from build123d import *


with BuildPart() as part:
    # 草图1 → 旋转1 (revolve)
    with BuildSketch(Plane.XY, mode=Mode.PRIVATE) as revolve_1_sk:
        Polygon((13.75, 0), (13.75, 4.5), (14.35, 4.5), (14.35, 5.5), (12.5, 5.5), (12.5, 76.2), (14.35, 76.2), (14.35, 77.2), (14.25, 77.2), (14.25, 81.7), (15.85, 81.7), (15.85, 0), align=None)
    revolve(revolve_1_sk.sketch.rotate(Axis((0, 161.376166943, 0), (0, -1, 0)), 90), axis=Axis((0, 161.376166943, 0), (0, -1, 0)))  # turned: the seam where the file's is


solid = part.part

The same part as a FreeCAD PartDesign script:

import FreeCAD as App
import Part
import Sketcher
Q = App.Units.Quantity

doc = App.newDocument("Part")
body = doc.addObject("PartDesign::Body", "Body")

# Sketch on XY plane
sketch1 = body.newObject("Sketcher::SketchObject", "Sketch")
sketch1.AttachmentSupport = (doc.getObject("XY_Plane"), [""])
sketch1.MapMode = "FlatFace"
sketch1.addGeometry(Part.LineSegment(App.Vector(13.75, 4.5, 0), App.Vector(13.75, 0, 0)), False)
sketch1.addGeometry(Part.LineSegment(App.Vector(13.75, 0, 0), App.Vector(15.85, 0, 0)), False)
sketch1.addGeometry(Part.LineSegment(App.Vector(15.85, 0, 0), App.Vector(15.85, 81.7, 0)), False)
sketch1.addGeometry(Part.LineSegment(App.Vector(15.85, 81.7, 0), App.Vector(14.25, 81.7, 0)), False)
sketch1.addGeometry(Part.LineSegment(App.Vector(14.25, 81.7, 0), App.Vector(14.25, 77.2, 0)), False)
sketch1.addGeometry(Part.LineSegment(App.Vector(14.25, 77.2, 0), App.Vector(14.35, 77.2, 0)), False)
sketch1.addGeometry(Part.LineSegment(App.Vector(14.35, 77.2, 0), App.Vector(14.35, 76.2, 0)), False)
sketch1.addGeometry(Part.LineSegment(App.Vector(14.35, 76.2, 0), App.Vector(12.5, 76.2, 0)), False)
sketch1.addGeometry(Part.LineSegment(App.Vector(12.5, 76.2, 0), App.Vector(12.5, 5.5, 0)), False)
sketch1.addGeometry(Part.LineSegment(App.Vector(12.5, 5.5, 0), App.Vector(14.35, 5.5, 0)), False)
sketch1.addGeometry(Part.LineSegment(App.Vector(14.35, 5.5, 0), App.Vector(14.35, 4.5, 0)), False)
sketch1.addGeometry(Part.LineSegment(App.Vector(14.35, 4.5, 0), App.Vector(13.75, 4.5, 0)), False)
sketch1.addConstraint(Sketcher.Constraint("Coincident", 0, 2, 1, 1))
sketch1.addConstraint(Sketcher.Constraint("Coincident", 1, 2, 2, 1))
sketch1.addConstraint(Sketcher.Constraint("Coincident", 2, 2, 3, 1))
sketch1.addConstraint(Sketcher.Constraint("Coincident", 3, 2, 4, 1))
sketch1.addConstraint(Sketcher.Constraint("Coincident", 4, 2, 5, 1))
sketch1.addConstraint(Sketcher.Constraint("Coincident", 5, 2, 6, 1))
sketch1.addConstraint(Sketcher.Constraint("Coincident", 6, 2, 7, 1))
sketch1.addConstraint(Sketcher.Constraint("Coincident", 7, 2, 8, 1))
sketch1.addConstraint(Sketcher.Constraint("Coincident", 8, 2, 9, 1))
sketch1.addConstraint(Sketcher.Constraint("Coincident", 9, 2, 10, 1))
sketch1.addConstraint(Sketcher.Constraint("Coincident", 10, 2, 11, 1))
sketch1.addConstraint(Sketcher.Constraint("Coincident", 11, 2, 0, 1))
sketch1.addConstraint(Sketcher.Constraint("Vertical", 0))
sketch1.addConstraint(Sketcher.Constraint("Horizontal", 1))
sketch1.addConstraint(Sketcher.Constraint("Vertical", 2))
sketch1.addConstraint(Sketcher.Constraint("Horizontal", 3))
sketch1.addConstraint(Sketcher.Constraint("Vertical", 4))
sketch1.addConstraint(Sketcher.Constraint("Horizontal", 5))
sketch1.addConstraint(Sketcher.Constraint("Vertical", 6))
sketch1.addConstraint(Sketcher.Constraint("Horizontal", 7))
sketch1.addConstraint(Sketcher.Constraint("Vertical", 8))
sketch1.addConstraint(Sketcher.Constraint("Horizontal", 9))
sketch1.addConstraint(Sketcher.Constraint("Vertical", 10))
sketch1.addConstraint(Sketcher.Constraint("Horizontal", 11))
sketch1.addConstraint(Sketcher.Constraint("PointOnObject", 0, 2, -1))
sketch1.addConstraint(Sketcher.Constraint("Vertical", 6, 2, 9, 2))
sketch1.addConstraint(Sketcher.Constraint("Equal", 0, 4))
sketch1.addConstraint(Sketcher.Constraint("Equal", 6, 10))
sketch1.addConstraint(Sketcher.Constraint("DistanceY", 6, 2, 6, 1, Q("1 mm")))
sketch1.addConstraint(Sketcher.Constraint("DistanceX", 1, 1, 1, 2, Q("2.1 mm")))
sketch1.addConstraint(Sketcher.Constraint("DistanceX", 3, 2, 3, 1, Q("1.6 mm")))
sketch1.addConstraint(Sketcher.Constraint("DistanceX", 5, 1, 5, 2, Q("0.1 mm")))
sketch1.addConstraint(Sketcher.Constraint("DistanceY", 0, 2, 0, 1, Q("4.5 mm")))
sketch1.addConstraint(Sketcher.Constraint("DistanceY", 2, 1, 2, 2, Q("81.7 mm")))
sketch1.addConstraint(Sketcher.Constraint("DistanceX", 7, 2, 7, 1, Q("1.85 mm")))
sketch1.addConstraint(Sketcher.Constraint("DistanceX", -1, 1, 7, 2, Q("12.5 mm")))
revolution = body.newObject("PartDesign::Revolution", "Revolution")
revolution.Profile = sketch1
revolution.ReferenceAxis = (sketch1, ["V_Axis"])
revolution.Angle = 360

doc.recompute()
